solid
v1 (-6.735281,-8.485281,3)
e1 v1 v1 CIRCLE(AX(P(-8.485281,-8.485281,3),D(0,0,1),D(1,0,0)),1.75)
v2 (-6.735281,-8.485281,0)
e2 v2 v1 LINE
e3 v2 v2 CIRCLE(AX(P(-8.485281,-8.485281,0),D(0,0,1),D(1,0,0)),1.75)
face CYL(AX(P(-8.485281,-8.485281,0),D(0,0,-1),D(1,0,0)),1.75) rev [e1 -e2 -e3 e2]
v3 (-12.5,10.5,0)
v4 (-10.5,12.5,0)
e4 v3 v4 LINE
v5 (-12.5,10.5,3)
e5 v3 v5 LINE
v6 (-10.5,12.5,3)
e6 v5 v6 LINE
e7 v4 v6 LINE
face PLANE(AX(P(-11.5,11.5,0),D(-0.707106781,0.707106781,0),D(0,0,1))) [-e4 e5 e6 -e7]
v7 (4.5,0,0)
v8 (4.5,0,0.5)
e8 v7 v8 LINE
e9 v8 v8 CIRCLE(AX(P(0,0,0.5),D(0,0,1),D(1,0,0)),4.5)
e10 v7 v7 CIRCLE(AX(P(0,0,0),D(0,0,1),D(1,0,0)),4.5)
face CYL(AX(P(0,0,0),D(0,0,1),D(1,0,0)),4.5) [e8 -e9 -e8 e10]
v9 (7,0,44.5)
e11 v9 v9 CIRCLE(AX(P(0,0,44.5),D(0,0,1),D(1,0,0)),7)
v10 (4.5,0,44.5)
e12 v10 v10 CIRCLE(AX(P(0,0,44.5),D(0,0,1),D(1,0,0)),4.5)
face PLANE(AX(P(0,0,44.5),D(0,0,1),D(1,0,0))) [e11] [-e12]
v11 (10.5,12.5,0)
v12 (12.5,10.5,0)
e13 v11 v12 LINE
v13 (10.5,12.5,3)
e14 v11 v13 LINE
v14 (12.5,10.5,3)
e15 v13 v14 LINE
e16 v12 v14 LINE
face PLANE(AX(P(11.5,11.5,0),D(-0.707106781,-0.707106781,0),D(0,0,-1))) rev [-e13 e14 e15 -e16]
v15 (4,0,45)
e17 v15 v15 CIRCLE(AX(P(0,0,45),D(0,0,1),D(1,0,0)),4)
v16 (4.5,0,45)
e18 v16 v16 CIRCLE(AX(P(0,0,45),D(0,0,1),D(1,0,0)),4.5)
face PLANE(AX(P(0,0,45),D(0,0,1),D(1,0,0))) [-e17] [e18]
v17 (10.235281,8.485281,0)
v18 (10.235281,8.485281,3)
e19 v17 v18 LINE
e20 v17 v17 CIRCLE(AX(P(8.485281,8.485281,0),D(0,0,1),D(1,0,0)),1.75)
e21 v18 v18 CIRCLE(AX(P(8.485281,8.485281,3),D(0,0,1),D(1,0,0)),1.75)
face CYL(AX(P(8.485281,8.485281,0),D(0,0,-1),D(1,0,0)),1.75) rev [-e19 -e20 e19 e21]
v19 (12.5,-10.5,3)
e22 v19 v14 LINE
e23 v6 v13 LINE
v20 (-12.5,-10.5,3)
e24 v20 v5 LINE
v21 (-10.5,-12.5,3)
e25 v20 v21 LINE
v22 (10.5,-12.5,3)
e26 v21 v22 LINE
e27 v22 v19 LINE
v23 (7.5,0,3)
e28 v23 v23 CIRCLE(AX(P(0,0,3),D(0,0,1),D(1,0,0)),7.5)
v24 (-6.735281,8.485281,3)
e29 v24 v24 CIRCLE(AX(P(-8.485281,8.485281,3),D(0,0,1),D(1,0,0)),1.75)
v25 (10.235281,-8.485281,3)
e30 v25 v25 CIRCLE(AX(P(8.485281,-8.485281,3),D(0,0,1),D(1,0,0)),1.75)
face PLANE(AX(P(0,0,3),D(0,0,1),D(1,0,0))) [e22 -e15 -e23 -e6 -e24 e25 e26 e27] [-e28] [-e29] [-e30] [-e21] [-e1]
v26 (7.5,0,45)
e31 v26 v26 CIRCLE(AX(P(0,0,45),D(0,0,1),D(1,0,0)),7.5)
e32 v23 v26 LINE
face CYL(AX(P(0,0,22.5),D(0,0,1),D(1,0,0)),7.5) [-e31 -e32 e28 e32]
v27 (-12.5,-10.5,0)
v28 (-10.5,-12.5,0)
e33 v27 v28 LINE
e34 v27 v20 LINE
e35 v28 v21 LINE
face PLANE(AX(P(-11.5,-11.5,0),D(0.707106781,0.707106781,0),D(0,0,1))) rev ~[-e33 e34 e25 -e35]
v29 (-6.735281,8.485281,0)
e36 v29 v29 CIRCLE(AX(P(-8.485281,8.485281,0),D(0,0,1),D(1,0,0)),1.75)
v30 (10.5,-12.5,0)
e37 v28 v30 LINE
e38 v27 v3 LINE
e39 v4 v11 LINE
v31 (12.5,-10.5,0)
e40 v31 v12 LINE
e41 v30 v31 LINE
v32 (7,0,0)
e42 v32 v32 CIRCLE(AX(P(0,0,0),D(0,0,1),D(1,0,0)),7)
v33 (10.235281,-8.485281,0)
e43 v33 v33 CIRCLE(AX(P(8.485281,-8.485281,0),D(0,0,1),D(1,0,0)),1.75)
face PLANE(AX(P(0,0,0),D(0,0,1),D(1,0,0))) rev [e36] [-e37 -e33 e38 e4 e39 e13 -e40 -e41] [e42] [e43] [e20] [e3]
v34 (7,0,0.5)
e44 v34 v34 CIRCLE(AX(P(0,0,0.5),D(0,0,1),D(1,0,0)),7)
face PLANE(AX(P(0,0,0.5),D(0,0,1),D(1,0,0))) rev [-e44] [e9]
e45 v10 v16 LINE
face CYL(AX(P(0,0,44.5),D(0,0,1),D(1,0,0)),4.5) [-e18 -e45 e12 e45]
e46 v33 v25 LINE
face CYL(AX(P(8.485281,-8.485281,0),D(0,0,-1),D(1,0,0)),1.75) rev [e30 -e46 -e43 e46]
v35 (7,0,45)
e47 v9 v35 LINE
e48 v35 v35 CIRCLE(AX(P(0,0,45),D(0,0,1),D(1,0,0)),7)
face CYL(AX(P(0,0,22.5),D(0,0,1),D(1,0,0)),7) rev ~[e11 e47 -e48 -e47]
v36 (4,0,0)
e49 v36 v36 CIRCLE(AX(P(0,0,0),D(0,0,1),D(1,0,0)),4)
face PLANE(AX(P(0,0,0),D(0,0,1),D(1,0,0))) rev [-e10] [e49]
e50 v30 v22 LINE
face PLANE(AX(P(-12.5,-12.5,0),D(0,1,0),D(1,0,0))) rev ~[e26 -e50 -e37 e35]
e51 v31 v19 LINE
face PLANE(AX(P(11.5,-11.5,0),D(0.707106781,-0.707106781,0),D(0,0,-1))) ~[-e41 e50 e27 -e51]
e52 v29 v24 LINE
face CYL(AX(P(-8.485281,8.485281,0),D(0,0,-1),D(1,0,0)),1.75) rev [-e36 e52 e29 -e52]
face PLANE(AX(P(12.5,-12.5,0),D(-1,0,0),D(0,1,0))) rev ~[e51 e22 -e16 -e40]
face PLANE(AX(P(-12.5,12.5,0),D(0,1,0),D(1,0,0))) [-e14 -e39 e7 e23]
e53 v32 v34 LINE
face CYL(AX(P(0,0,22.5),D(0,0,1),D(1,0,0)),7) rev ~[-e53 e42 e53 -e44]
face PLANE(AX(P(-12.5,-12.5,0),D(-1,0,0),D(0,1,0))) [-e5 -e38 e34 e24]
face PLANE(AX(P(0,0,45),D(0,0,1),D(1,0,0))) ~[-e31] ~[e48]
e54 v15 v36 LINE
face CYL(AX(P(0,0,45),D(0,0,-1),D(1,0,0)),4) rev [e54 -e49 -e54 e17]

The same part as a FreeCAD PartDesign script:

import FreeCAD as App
import Part
import Sketcher
from FreeCAD import Vector


def edges_at(feature, points):
    """Names of the edges that pass closest to the given points."""
    edges = feature.Shape.Edges
    near = lambda p: min(range(len(edges)), key=lambda i: edges[i].distToShape(Part.Vertex(*p))[0])
    return sorted({f"Edge{near(p) + 1}" for p in points})


def add_polygon(sketch, points):
    """Adds a closed chain of lines whose ends are joined by coincident constraints."""
    first, n = sketch.GeometryCount, len(points)
    for a, b in zip(points, points[1:] + points[:1]):
        sketch.addGeometry(Part.LineSegment(App.Vector(*a, 0), App.Vector(*b, 0)), False)
    for i in range(n):
        sketch.addConstraint(Sketcher.Constraint("Coincident", first + i, 2, first + (i + 1) % n, 1))

doc = App.newDocument("Part")
body = doc.addObject("PartDesign::Body", "Body")
body.AllowCompound = True

sketch1 = body.newObject("Sketcher::SketchObject", "Sketch")
sketch1.AttachmentSupport = (doc.getObject("XY_Plane"), [""])
sketch1.MapMode = "FlatFace"
add_polygon(sketch1, [(-12.5, 12.5), (-12.5, -12.5), (12.5, -12.5), (12.5, 12.5)])
sketch1.addGeometry(Part.Circle(Vector(-8.485281, -8.485281, 0), Vector(0, 0, 1), 1.75), False)
sketch1.addGeometry(Part.Circle(Vector(8.485281, -8.485281, 0), Vector(0, 0, 1), 1.75), False)
sketch1.addGeometry(Part.Circle(Vector(-8.485281, 8.485281, 0), Vector(0, 0, 1), 1.75), False)
sketch1.addGeometry(Part.Circle(Vector(0, 0, 0), Vector(0, 0, 1), 7.5), False)
sketch1.addGeometry(Part.Circle(Vector(8.485281, 8.485281, 0), Vector(0, 0, 1), 1.75), False)
sketch1.addConstraint(Sketcher.Constraint("Vertical", 0))
sketch1.addConstraint(Sketcher.Constraint("Horizontal", 1))
sketch1.addConstraint(Sketcher.Constraint("Vertical", 2))
sketch1.addConstraint(Sketcher.Constraint("Horizontal", 3))
sketch1.addConstraint(Sketcher.Constraint("Coincident", 7, 3, -1, 1))
sketch1.addConstraint(Sketcher.Constraint("Equal", 4, 5))
sketch1.addConstraint(Sketcher.Constraint("Equal", 5, 6))
sketch1.addConstraint(Sketcher.Constraint("Equal", 6, 8))
sketch1.addConstraint(Sketcher.Constraint("Symmetric", 5, 3, 6, 3, -1, 1))
sketch1.addConstraint(Sketcher.Constraint("Symmetric", 4, 3, 8, 3, -1, 1))
sketch1.addConstraint(Sketcher.Constraint("Symmetric", 0, 2, 2, 2, -1, 1))
sketch1.addConstraint(Sketcher.Constraint("Symmetric", 4, 3, 5, 3, -2))
sketch1.addConstraint(Sketcher.Constraint("Equal", 3, 0))
sketch1.addConstraint(Sketcher.Constraint("Diameter", 7, 15.0))
sketch1.addConstraint(Sketcher.Constraint("Diameter", 4, 3.5))
sketch1.addConstraint(Sketcher.Constraint("DistanceX", 1, 1, 1, 2, 25.0))
sketch1.addConstraint(Sketcher.Constraint("DistanceX", 4, 3, -1, 1, 8.485281))
sketch1.addConstraint(Sketcher.Constraint("DistanceY", 4, 3, -1, 1, 8.485281))
pad1 = body.newObject("PartDesign::Pad", "Pad")
pad1.Profile = sketch1
pad1.Length = 3

sketch2 = body.newObject("Sketcher::SketchObject", "Sketch001")
sketch2.AttachmentSupport = (doc.getObject("XZ_Plane"), [""])
sketch2.MapMode = "FlatFace"
add_polygon(sketch2, [(4, 45), (4, 0), (4.5, 0), (4.5, 0.5), (7, 0.5), (7, 44.5), (4.5, 44.5), (4.5, 45)])
sketch2.addConstraint(Sketcher.Constraint("Vertical", 0))
sketch2.addConstraint(Sketcher.Constraint("Horizontal", 1))
sketch2.addConstraint(Sketcher.Constraint("Vertical", 2))
sketch2.addConstraint(Sketcher.Constraint("Horizontal", 3))
sketch2.addConstraint(Sketcher.Constraint("Vertical", 4))
sketch2.addConstraint(Sketcher.Constraint("Horizontal", 5))
sketch2.addConstraint(Sketcher.Constraint("Vertical", 6))
sketch2.addConstraint(Sketcher.Constraint("Horizontal", 7))
sketch2.addConstraint(Sketcher.Constraint("PointOnObject", 0, 2, -1))
sketch2.addConstraint(Sketcher.Constraint("Vertical", 2, 2, 5, 2))
sketch2.addConstraint(Sketcher.Constraint("Equal", 7, 2))
sketch2.addConstraint(Sketcher.Constraint("Equal", 2, 6))
sketch2.addConstraint(Sketcher.Constraint("DistanceY", 0, 2, 0, 1, 45.0))
sketch2.addConstraint(Sketcher.Constraint("DistanceY", 4, 1, 4, 2, 44.0))
sketch2.addConstraint(Sketcher.Constraint("DistanceX", 3, 1, 3, 2, 2.5))
sketch2.addConstraint(Sketcher.Constraint("DistanceX", -1, 1, 0, 2, 4.0))
revolution = body.newObject("PartDesign::Revolution", "Revolution")
revolution.Profile = sketch2
revolution.ReferenceAxis = (sketch2, ["V_Axis"])
revolution.Angle = 360

sketch3 = body.newObject("Sketcher::SketchObject", "Sketch002")
sketch3.AttachmentSupport = (doc.getObject("XZ_Plane"), [""])
sketch3.MapMode = "FlatFace"
add_polygon(sketch3, [(7, 45), (7, 0), (7.5, 0), (7.5, 45)])
sketch3.addConstraint(Sketcher.Constraint("Vertical", 0))
sketch3.addConstraint(Sketcher.Constraint("Horizontal", 1))
sketch3.addConstraint(Sketcher.Constraint("Vertical", 2))
sketch3.addConstraint(Sketcher.Constraint("Horizontal", 3))
sketch3.addConstraint(Sketcher.Constraint("PointOnObject", 0, 2, -1))
sketch3.addConstraint(Sketcher.Constraint("DistanceY", 0, 2, 0, 1, 45.0))
sketch3.addConstraint(Sketcher.Constraint("DistanceX", 1, 1, 1, 2, 0.5))
sketch3.addConstraint(Sketcher.Constraint("DistanceX", -1, 1, 0, 2, 7.0))
revolution2 = body.newObject("PartDesign::Revolution", "Revolution001")
revolution2.Profile = sketch3
revolution2.ReferenceAxis = (sketch3, ["V_Axis"])
revolution2.Angle = 360
doc.recompute()

chamfer = body.newObject("PartDesign::Chamfer", "Chamfer")
chamfer.Base = (revolution2, edges_at(revolution2, [
    (-12.5, -12.5, 1.5),
    (-12.5, 12.5, 1.5),
    (12.5, 12.5, 1.5),
    (12.5, -12.5, 1.5),
]))
chamfer.Size = 2

doc.recompute()
